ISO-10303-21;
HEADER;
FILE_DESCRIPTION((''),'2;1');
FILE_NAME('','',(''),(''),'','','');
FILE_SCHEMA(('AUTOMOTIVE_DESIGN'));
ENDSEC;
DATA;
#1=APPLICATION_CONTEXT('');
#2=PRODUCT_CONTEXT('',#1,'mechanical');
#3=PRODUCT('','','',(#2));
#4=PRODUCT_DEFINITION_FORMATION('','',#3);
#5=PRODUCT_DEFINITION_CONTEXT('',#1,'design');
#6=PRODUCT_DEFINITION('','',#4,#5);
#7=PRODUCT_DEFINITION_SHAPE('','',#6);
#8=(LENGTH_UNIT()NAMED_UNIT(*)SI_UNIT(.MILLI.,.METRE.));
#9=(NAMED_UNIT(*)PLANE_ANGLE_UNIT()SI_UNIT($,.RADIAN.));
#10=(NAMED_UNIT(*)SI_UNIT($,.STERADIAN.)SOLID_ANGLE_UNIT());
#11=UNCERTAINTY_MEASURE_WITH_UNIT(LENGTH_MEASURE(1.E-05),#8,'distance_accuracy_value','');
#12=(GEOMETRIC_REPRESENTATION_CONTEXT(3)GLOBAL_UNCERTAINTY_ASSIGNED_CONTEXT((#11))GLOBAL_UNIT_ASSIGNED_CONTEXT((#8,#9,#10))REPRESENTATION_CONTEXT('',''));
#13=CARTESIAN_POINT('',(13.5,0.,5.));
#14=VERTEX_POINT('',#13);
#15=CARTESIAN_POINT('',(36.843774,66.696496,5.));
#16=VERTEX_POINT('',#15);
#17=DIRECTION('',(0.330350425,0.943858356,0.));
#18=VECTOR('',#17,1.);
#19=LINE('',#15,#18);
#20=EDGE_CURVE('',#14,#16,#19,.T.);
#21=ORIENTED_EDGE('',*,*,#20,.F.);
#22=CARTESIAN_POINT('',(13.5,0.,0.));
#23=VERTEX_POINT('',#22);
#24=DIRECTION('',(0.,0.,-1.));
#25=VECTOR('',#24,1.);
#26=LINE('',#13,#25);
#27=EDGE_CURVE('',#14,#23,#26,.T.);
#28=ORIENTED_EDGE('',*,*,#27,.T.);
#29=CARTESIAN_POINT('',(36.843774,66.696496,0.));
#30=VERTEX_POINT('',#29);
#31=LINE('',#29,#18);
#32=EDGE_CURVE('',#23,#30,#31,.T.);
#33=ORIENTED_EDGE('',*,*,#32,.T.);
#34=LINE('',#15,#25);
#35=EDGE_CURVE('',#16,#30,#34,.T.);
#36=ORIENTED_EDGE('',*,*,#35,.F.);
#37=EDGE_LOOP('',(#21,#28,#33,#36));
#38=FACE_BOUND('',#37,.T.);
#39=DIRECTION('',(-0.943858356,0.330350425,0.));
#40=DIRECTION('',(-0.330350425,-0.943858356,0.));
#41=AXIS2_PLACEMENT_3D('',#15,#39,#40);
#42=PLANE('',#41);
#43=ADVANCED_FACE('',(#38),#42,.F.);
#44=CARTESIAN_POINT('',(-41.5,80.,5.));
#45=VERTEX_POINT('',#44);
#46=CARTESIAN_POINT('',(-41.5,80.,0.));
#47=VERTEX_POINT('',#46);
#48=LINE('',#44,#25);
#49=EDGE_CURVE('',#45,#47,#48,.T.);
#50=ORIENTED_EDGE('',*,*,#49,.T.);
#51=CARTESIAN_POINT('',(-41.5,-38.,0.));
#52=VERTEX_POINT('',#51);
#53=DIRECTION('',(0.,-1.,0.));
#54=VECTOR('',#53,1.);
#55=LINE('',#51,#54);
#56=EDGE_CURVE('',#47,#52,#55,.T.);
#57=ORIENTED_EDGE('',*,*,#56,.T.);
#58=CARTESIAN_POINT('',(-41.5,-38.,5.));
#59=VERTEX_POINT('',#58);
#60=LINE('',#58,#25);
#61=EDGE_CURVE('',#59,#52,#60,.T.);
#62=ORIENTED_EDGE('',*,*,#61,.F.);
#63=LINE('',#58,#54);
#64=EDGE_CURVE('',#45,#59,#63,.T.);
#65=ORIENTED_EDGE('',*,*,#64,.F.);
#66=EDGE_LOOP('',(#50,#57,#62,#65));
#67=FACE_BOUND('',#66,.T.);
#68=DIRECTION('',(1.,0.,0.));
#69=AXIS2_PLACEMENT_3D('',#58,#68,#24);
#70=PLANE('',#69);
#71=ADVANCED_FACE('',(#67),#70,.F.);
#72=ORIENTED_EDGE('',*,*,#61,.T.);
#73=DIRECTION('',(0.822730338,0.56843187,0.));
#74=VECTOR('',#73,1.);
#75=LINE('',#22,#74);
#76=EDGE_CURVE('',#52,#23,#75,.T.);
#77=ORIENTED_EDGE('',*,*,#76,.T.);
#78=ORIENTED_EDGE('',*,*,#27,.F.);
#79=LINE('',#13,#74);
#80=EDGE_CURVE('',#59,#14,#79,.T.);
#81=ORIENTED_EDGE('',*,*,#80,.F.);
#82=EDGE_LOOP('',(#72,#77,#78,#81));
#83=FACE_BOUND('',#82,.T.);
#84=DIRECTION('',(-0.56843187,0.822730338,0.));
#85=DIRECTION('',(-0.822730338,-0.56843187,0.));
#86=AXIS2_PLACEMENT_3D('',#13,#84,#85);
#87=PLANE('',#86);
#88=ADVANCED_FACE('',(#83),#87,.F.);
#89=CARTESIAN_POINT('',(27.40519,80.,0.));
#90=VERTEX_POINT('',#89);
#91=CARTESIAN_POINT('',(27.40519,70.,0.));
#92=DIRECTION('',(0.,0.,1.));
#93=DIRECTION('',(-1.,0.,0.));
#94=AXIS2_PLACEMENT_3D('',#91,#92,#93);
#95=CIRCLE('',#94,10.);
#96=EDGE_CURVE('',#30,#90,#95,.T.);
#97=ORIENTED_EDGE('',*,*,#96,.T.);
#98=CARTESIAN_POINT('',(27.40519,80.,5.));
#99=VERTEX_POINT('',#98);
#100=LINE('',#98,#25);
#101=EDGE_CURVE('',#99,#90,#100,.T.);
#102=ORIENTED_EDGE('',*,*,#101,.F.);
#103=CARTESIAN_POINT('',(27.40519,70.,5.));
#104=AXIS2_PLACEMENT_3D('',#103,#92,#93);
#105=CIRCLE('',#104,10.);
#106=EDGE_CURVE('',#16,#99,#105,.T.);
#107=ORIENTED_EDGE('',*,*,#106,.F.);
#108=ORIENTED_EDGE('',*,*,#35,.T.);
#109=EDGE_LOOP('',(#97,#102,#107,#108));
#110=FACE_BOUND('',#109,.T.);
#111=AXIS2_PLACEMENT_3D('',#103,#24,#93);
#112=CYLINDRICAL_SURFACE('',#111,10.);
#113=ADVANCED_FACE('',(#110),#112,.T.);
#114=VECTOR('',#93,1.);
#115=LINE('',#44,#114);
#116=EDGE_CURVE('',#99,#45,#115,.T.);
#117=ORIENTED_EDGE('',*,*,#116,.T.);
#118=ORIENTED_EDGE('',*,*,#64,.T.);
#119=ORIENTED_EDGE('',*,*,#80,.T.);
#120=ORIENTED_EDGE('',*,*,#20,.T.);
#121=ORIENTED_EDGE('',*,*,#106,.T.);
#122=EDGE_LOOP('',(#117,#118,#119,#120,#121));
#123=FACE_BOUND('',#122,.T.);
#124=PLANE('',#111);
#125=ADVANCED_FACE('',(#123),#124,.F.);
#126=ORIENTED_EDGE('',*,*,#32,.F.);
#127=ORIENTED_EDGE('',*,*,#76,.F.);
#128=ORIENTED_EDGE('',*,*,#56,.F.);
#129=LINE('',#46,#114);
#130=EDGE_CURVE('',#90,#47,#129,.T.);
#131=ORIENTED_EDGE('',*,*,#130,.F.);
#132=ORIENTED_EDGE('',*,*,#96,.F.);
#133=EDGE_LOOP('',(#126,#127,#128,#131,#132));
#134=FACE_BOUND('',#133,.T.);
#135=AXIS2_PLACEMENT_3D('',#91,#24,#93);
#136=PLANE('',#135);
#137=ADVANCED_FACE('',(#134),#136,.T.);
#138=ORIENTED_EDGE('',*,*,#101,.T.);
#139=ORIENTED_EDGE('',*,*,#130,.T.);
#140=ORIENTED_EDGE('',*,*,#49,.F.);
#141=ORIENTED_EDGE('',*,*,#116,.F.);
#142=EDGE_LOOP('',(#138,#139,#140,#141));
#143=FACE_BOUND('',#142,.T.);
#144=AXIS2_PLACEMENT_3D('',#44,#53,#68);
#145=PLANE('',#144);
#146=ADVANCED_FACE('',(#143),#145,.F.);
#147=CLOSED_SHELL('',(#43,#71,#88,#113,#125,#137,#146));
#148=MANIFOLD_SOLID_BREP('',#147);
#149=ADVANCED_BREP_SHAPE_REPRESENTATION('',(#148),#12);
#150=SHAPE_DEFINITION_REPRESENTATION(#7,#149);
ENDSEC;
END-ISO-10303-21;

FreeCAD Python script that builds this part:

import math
import FreeCAD as App
import Part
import Sketcher

V = App.Vector

doc = App.newDocument("Part")
params = doc.addObject("Spreadsheet::Sheet", "Params")
for row, (alias, value) in enumerate([
    ("sketch1_radius", "10 mm"),
    ("sketch1_height", "118 mm"),
    ("pad1_length", "5 mm"),
], start=1):
    params.set(f"A{row}", alias)
    params.set(f"B{row}", "=" + value)
    params.setAlias(f"B{row}", alias)

body = doc.addObject("PartDesign::Body", "Body")

# Sketch on XY plane
sketch1 = doc.addObject("Sketcher::SketchObject", "Sketch")
body.addObject(sketch1)
sketch1.AttachmentSupport = (doc.XY_Plane, [""])
sketch1.MapMode = "FlatFace"
sketch1.addGeometry([
    Part.LineSegment(V(-42, 80, 0), V(-42, -38, 0)),  # 0
    Part.LineSegment(V(-42, -38, 0), V(14, 0, 0)),  # 1
    Part.LineSegment(V(14, 0, 0), V(37, 67, 0)),  # 2
    Part.ArcOfCircle(Part.Circle(V(27, 70, 0), V(0, 0, 1), 10), math.radians(-19), math.radians(90)),  # 3
    Part.LineSegment(V(27, 80, 0), V(-42, 80, 0)),  # 4
], False)
sketch1.addConstraint([
    Sketcher.Constraint("Coincident", 0, 2, 1, 1),
    Sketcher.Constraint("Coincident", 1, 2, 2, 1),
    Sketcher.Constraint("Tangent", 2, 2, 3, 1),
    Sketcher.Constraint("Tangent", 3, 2, 4, 1),
    Sketcher.Constraint("Coincident", 4, 2, 0, 1),
    Sketcher.Constraint("Vertical", 0),
    Sketcher.Constraint("Horizontal", 4),
    Sketcher.Constraint("PointOnObject", 1, 2, -1),
    Sketcher.Constraint("Radius", 3, 10.0),
    Sketcher.Constraint("DistanceY", 0, 2, 0, 1, 118.0),
    Sketcher.Constraint("DistanceY", -1, 1, 3, 3, 70.0),
    Sketcher.Constraint("DistanceX", 0, 2, 1, 2, 55.0),
    Sketcher.Constraint("DistanceX", 0, 2, -1, 1, 41.5),
    Sketcher.Constraint("DistanceX", 4, 2, 4, 1, 68.90519),
])
sketch1.setExpression("Constraints[8]", "Params.sketch1_radius")
sketch1.setExpression("Constraints[9]", "Params.sketch1_height")
pad1 = doc.addObject("PartDesign::Pad", "Pad")
body.addObject(pad1)
pad1.Profile = sketch1
pad1.setExpression("Length", "Params.pad1_length")

doc.recompute()
